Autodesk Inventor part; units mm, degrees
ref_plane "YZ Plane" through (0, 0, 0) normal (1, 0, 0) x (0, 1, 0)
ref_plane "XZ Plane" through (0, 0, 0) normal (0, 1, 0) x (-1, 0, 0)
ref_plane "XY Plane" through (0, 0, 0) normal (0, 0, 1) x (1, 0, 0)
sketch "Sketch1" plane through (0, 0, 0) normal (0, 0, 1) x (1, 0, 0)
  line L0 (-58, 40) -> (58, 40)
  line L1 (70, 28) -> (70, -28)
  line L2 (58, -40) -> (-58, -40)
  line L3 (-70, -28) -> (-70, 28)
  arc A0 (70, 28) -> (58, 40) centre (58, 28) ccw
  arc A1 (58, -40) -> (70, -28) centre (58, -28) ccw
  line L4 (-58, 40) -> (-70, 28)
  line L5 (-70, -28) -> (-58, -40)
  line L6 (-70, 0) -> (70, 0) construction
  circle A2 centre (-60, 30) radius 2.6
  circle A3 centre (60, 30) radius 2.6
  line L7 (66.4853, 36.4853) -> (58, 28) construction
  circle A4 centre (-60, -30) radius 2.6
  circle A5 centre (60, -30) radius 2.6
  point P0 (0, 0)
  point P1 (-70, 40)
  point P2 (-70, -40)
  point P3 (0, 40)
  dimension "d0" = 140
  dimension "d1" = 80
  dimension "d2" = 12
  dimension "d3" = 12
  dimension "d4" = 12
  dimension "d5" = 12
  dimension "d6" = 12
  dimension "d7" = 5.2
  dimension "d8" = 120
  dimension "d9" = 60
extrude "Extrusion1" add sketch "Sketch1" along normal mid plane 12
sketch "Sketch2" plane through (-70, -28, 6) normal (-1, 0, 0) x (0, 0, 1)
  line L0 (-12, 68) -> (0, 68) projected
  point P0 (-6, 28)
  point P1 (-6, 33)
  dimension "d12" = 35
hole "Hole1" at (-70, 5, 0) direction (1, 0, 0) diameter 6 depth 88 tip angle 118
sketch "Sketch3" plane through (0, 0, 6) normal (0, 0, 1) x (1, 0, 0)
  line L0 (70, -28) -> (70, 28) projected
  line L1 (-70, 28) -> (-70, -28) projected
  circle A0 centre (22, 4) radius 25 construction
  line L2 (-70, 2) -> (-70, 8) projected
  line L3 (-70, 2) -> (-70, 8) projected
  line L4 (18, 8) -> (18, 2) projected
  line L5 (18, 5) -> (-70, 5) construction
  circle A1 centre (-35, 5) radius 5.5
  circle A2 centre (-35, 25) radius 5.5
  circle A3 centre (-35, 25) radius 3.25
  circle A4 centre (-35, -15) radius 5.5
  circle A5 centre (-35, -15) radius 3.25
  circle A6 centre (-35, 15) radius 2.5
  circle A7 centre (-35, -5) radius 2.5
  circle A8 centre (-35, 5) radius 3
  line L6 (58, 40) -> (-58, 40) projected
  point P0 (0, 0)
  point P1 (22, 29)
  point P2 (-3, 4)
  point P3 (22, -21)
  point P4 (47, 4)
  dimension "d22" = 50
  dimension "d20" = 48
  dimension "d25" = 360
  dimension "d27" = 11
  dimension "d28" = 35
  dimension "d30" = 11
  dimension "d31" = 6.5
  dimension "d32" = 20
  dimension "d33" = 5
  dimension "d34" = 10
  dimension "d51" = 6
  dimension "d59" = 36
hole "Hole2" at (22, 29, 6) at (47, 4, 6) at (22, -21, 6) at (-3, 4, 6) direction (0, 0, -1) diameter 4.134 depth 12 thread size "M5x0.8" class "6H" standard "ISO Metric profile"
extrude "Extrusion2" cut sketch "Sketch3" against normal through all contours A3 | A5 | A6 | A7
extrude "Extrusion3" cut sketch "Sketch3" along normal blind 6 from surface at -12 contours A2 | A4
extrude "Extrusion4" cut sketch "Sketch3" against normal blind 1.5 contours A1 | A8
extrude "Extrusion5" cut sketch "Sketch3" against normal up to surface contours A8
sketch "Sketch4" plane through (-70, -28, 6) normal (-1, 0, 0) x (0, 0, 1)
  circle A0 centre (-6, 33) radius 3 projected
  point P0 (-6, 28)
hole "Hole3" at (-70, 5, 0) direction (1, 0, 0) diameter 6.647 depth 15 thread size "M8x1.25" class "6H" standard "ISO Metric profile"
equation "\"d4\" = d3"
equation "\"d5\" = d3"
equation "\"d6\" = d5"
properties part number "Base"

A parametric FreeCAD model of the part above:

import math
import FreeCAD as App
import Part
import Sketcher

V = App.Vector

doc = App.newDocument("Part")
body = doc.addObject("PartDesign::Body", "Body")

# Sketch on XY plane
sketch1 = body.newObject("Sketcher::SketchObject", "Sketch")
sketch1.AttachmentSupport = (doc.getObject("XY_Plane"), [""])
sketch1.MapMode = "FlatFace"
sketch1.addGeometry([
    Part.LineSegment(V(58, 40, 0), V(-58, 40, 0)),  # 0
    Part.LineSegment(V(-58, 40, 0), V(-70, 28, 0)),  # 1
    Part.LineSegment(V(-70, 28, 0), V(-70, -28, 0)),  # 2
    Part.LineSegment(V(-70, -28, 0), V(-58, -40, 0)),  # 3
    Part.LineSegment(V(-58, -40, 0), V(58, -40, 0)),  # 4
    Part.ArcOfCircle(Part.Circle(V(58, -28, 0), V(0, 0, 1), 12), math.radians(-90), math.radians(0)),  # 5
    Part.LineSegment(V(70, -28, 0), V(70, 28, 0)),  # 6
    Part.ArcOfCircle(Part.Circle(V(58, 28, 0), V(0, 0, 1), 12), math.radians(0), math.radians(90)),  # 7
    Part.Circle(V(-60, -30, 0), V(0, 0, 1), 2.6),  # 8
    Part.Circle(V(60, -30, 0), V(0, 0, 1), 2.6),  # 9
    Part.Circle(V(-60, 30, 0), V(0, 0, 1), 2.6),  # 10
    Part.Circle(V(60, 30, 0), V(0, 0, 1), 2.6),  # 11
], False)
sketch1.addConstraint([
    Sketcher.Constraint("Coincident", 0, 2, 1, 1),
    Sketcher.Constraint("Coincident", 1, 2, 2, 1),
    Sketcher.Constraint("Coincident", 2, 2, 3, 1),
    Sketcher.Constraint("Coincident", 3, 2, 4, 1),
    Sketcher.Constraint("Tangent", 4, 2, 5, 1),
    Sketcher.Constraint("Tangent", 5, 2, 6, 1),
    Sketcher.Constraint("Tangent", 6, 2, 7, 1),
    Sketcher.Constraint("Tangent", 7, 2, 0, 1),
    Sketcher.Constraint("Horizontal", 0),
    Sketcher.Constraint("Vertical", 2),
    Sketcher.Constraint("Horizontal", 4),
    Sketcher.Constraint("Vertical", 6),
    Sketcher.Constraint("Equal", 5, 7),
    Sketcher.Constraint("Equal", 8, 9),
    Sketcher.Constraint("Equal", 9, 10),
    Sketcher.Constraint("Equal", 10, 11),
    Sketcher.Constraint("Symmetric", 9, 3, 10, 3, -1, 1),
    Sketcher.Constraint("Symmetric", 8, 3, 11, 3, -1, 1),
    Sketcher.Constraint("Symmetric", 0, 2, 4, 2, -1, 1),
    Sketcher.Constraint("Symmetric", 1, 2, 5, 2, -1, 1),
    Sketcher.Constraint("Symmetric", 8, 3, 9, 3, -2),
    Sketcher.Constraint("Perpendicular", 1, 3),
    Sketcher.Constraint("Horizontal", 5, 3, 2, 2),
    Sketcher.Constraint("Radius", 5, 12.0),
    Sketcher.Constraint("Diameter", 8, 5.2),
    Sketcher.Constraint("DistanceX", 8, 3, -1, 1, 60.0),
    Sketcher.Constraint("DistanceY", 8, 3, 10, 3, 60.0),
    Sketcher.Constraint("DistanceY", 3, 2, 0, 2, 80.0),
    Sketcher.Constraint("DistanceX", 0, 2, 0, 1, 116.0),
])
pad1 = body.newObject("PartDesign::Pad", "Pad")
pad1.Profile = sketch1
pad1.Length = 12
pad1.Midplane = True

# Sketch on YZ plane
sketch2 = body.newObject("Sketcher::SketchObject", "Sketch001")
sketch2.AttachmentSupport = (doc.getObject("YZ_Plane"), [""])
sketch2.MapMode = "FlatFace"
sketch2.AttachmentOffset = App.Placement(V(0, 0, -70), App.Rotation())
sketch2.addGeometry(Part.Circle(V(5, 0, 0), V(0, 0, 1), 3), False)
sketch2.addConstraint([
    Sketcher.Constraint("PointOnObject", 0, 3, -1),
    Sketcher.Constraint("Diameter", 0, 6.0),
    Sketcher.Constraint("DistanceX", -1, 1, 0, 3, 5.0),
])
doc.recompute()
hole = body.newObject("PartDesign::Hole", "Hole")
hole.Profile = sketch2
hole.ThreadType = "None"
hole.Diameter = 6
hole.DepthType = "Dimension"
hole.Depth = 88
hole.DrillPoint = "Angled"
hole.DrillPointAngle = 118
hole.Reversed = True

# Sketch on XY plane
sketch3 = body.newObject("Sketcher::SketchObject", "Sketch002")
sketch3.AttachmentSupport = (doc.getObject("XY_Plane"), [""])
sketch3.MapMode = "FlatFace"
sketch3.AttachmentOffset = App.Placement(V(0, 0, 6), App.Rotation())
sketch3.addGeometry([
    Part.Circle(V(22, 29, 0), V(0, 0, 1), 2.067),
    Part.Circle(V(47, 4, 0), V(0, 0, 1), 2.067),
    Part.Circle(V(22, -21, 0), V(0, 0, 1), 2.067),
    Part.Circle(V(-3, 4, 0), V(0, 0, 1), 2.067),
], False)
sketch3.addConstraint([
    Sketcher.Constraint("Equal", 0, 1),
    Sketcher.Constraint("Equal", 1, 2),
    Sketcher.Constraint("Equal", 2, 3),
    Sketcher.Constraint("Horizontal", 1, 3, 3, 3),
    Sketcher.Constraint("Vertical", 0, 3, 2, 3),
    Sketcher.Constraint("Diameter", 0, 4.134),
    Sketcher.Constraint("DistanceX", -1, 1, 0, 3, 22.0),
    Sketcher.Constraint("DistanceY", -1, 1, 0, 3, 29.0),
    Sketcher.Constraint("DistanceX", -1, 1, 1, 3, 47.0),
    Sketcher.Constraint("DistanceY", -1, 1, 1, 3, 4.0),
    Sketcher.Constraint("DistanceY", 2, 3, -1, 1, 21.0),
    Sketcher.Constraint("DistanceX", 3, 3, -1, 1, 3.0),
])
doc.recompute()
hole2 = body.newObject("PartDesign::Hole", "Hole001")
hole2.Profile = sketch3
hole2.ThreadType = "None"
hole2.Diameter = 4.134
hole2.DepthType = "Dimension"
hole2.Depth = 12
hole2.DrillPoint = "Flat"

# Sketch on XY plane
sketch4 = body.newObject("Sketcher::SketchObject", "Sketch003")
sketch4.AttachmentSupport = (doc.getObject("XY_Plane"), [""])
sketch4.MapMode = "FlatFace"
sketch4.AttachmentOffset = App.Placement(V(0, 0, 6), App.Rotation())
sketch4.addGeometry([
    Part.Circle(V(-35, 25, 0), V(0, 0, 1), 3.25),
    Part.Circle(V(-35, -15, 0), V(0, 0, 1), 3.25),
    Part.Circle(V(-35, 15, 0), V(0, 0, 1), 2.5),
    Part.Circle(V(-35, -5, 0), V(0, 0, 1), 2.5),
], False)
sketch4.addConstraint([
    Sketcher.Constraint("Equal", 0, 1),
    Sketcher.Constraint("Equal", 2, 3),
    Sketcher.Constraint("Symmetric", 1, 3, 2, 3, -1),
    Sketcher.Constraint("Vertical", 0, 3, 1, 3),
    Sketcher.Constraint("Vertical", 2, 3, 3, 3),
    Sketcher.Constraint("Diameter", 2, 5.0),
    Sketcher.Constraint("Diameter", 0, 6.5),
    Sketcher.Constraint("DistanceX", 0, 3, -1, 1, 35.0),
    Sketcher.Constraint("DistanceY", 3, 3, -1, 1, 5.0),
    Sketcher.Constraint("DistanceY", 2, 3, 0, 3, 10.0),
    Sketcher.Constraint("DistanceY", 1, 3, 3, 3, 10.0),
])
pocket1 = body.newObject("PartDesign::Pocket", "Pocket")
pocket1.Profile = sketch4
pocket1.Type = "ThroughAll"

# Sketch on XY plane
sketch5 = body.newObject("Sketcher::SketchObject", "Sketch004")
sketch5.AttachmentSupport = (doc.getObject("XY_Plane"), [""])
sketch5.MapMode = "FlatFace"
sketch5.AttachmentOffset = App.Placement(V(0, 0, -6), App.Rotation())
sketch5.addGeometry([
    Part.Circle(V(-35, 25, 0), V(0, 0, 1), 5.5),
    Part.Circle(V(-35, 25, 0), V(0, 0, 1), 3.25),
    Part.Circle(V(-35, -15, 0), V(0, 0, 1), 5.5),
    Part.Circle(V(-35, -15, 0), V(0, 0, 1), 3.25),
], False)
sketch5.addConstraint([
    Sketcher.Constraint("Coincident", 1, 3, 0, 3),
    Sketcher.Constraint("Coincident", 3, 3, 2, 3),
    Sketcher.Constraint("Equal", 0, 2),
    Sketcher.Constraint("Equal", 1, 3),
    Sketcher.Constraint("Vertical", 1, 3, 2, 3),
    Sketcher.Constraint("Diameter", 0, 11.0),
    Sketcher.Constraint("Diameter", 1, 6.5),
    Sketcher.Constraint("DistanceX", 0, 3, -1, 1, 35.0),
    Sketcher.Constraint("DistanceY", -1, 1, 0, 3, 25.0),
    Sketcher.Constraint("DistanceY", 2, 3, -1, 1, 15.0),
])
pocket2 = body.newObject("PartDesign::Pocket", "Pocket001")
pocket2.Profile = sketch5
pocket2.Length = 6
pocket2.Reversed = True

# Sketch on XY plane
sketch6 = body.newObject("Sketcher::SketchObject", "Sketch005")
sketch6.AttachmentSupport = (doc.getObject("XY_Plane"), [""])
sketch6.MapMode = "FlatFace"
sketch6.AttachmentOffset = App.Placement(V(0, 0, 6), App.Rotation())
sketch6.addGeometry(Part.Circle(V(-35, 5, 0), V(0, 0, 1), 5.5), False)
sketch6.addConstraint([
    Sketcher.Constraint("Diameter", 0, 11.0),
    Sketcher.Constraint("DistanceX", 0, 3, -1, 1, 35.0),
    Sketcher.Constraint("DistanceY", -1, 1, 0, 3, 5.0),
])
pocket3 = body.newObject("PartDesign::Pocket", "Pocket002")
pocket3.Profile = sketch6
pocket3.Length = 1.5

# Sketch on XY plane
sketch7 = body.newObject("Sketcher::SketchObject", "Sketch006")
sketch7.AttachmentSupport = (doc.getObject("XY_Plane"), [""])
sketch7.MapMode = "FlatFace"
sketch7.AttachmentOffset = App.Placement(V(0, 0, 6), App.Rotation())
sketch7.addGeometry(Part.Circle(V(-35, 5, 0), V(0, 0, 1), 3), False)
sketch7.addConstraint([
    Sketcher.Constraint("Diameter", 0, 6.0),
    Sketcher.Constraint("DistanceX", 0, 3, -1, 1, 35.0),
    Sketcher.Constraint("DistanceY", -1, 1, 0, 3, 5.0),
])
pocket4 = body.newObject("PartDesign::Pocket", "Pocket003")
pocket4.Profile = sketch7
pocket4.Length = 6

# Sketch on YZ plane
sketch8 = body.newObject("Sketcher::SketchObject", "Sketch007")
sketch8.AttachmentSupport = (doc.getObject("YZ_Plane"), [""])
sketch8.MapMode = "FlatFace"
sketch8.AttachmentOffset = App.Placement(V(0, 0, -70), App.Rotation())
sketch8.addGeometry(Part.Circle(V(5, 0, 0), V(0, 0, 1), 3.3235), False)
sketch8.addConstraint([
    Sketcher.Constraint("PointOnObject", 0, 3, -1),
    Sketcher.Constraint("Diameter", 0, 6.647),
    Sketcher.Constraint("DistanceX", -1, 1, 0, 3, 5.0),
])
doc.recompute()
hole3 = body.newObject("PartDesign::Hole", "Hole002")
hole3.Profile = sketch8
hole3.ThreadType = "None"
hole3.Diameter = 6.647
hole3.DepthType = "Dimension"
hole3.Depth = 15
hole3.DrillPoint = "Flat"
hole3.Reversed = True

doc.recompute()
